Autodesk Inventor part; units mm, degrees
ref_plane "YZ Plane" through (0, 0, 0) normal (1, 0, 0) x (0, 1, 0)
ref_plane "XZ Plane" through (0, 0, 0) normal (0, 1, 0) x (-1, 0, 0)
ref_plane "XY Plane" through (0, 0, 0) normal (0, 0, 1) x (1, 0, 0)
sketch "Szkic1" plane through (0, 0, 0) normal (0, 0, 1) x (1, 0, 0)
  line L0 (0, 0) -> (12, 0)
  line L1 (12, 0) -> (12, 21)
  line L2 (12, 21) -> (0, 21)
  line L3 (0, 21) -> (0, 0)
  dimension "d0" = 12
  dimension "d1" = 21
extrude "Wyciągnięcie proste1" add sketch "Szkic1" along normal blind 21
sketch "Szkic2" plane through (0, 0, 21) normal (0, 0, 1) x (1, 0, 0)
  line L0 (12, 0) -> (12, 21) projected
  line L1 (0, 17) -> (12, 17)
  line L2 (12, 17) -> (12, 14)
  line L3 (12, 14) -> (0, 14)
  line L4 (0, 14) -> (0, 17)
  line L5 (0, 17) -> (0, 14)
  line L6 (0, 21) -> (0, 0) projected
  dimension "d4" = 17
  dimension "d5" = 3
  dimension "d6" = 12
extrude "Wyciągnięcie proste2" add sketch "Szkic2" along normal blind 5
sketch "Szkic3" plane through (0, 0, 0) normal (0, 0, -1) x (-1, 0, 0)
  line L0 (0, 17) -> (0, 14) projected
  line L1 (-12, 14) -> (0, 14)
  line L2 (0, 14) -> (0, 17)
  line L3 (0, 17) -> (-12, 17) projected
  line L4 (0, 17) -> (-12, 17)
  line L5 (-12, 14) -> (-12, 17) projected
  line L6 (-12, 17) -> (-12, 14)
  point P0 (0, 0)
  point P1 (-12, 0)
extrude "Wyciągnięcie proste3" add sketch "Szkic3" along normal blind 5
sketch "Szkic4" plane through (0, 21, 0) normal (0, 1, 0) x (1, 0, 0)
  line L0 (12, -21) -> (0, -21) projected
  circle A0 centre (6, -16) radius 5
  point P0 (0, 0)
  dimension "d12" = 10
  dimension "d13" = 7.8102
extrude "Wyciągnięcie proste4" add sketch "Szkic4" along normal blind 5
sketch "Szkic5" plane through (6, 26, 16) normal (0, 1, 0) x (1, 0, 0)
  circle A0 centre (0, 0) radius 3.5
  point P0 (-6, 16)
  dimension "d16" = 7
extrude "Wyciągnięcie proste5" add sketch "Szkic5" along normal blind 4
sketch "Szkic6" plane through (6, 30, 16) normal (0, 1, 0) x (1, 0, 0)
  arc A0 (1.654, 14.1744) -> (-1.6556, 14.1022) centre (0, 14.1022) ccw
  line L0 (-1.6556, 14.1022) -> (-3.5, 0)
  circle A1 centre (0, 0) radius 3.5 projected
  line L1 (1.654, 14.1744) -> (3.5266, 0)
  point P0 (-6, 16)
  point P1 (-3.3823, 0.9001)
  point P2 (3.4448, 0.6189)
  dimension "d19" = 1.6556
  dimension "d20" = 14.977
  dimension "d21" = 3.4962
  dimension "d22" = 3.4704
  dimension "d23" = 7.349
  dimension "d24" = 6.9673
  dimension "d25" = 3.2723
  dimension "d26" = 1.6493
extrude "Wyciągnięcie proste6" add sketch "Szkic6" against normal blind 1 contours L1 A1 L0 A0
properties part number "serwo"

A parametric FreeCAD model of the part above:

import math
import FreeCAD as App
import Part
import Sketcher

doc = App.newDocument("Part")
body = doc.addObject("PartDesign::Body", "Body")

# Sketch on XY plane
sketch1 = body.newObject("Sketcher::SketchObject", "Sketch")
sketch1.AttachmentSupport = (doc.getObject("XY_Plane"), [""])
sketch1.MapMode = "FlatFace"
sketch1.addGeometry([
    Part.LineSegment(App.Vector(0, 21, 0), App.Vector(0, 0, 0)),
    Part.LineSegment(App.Vector(0, 0, 0), App.Vector(12, 0, 0)),
    Part.LineSegment(App.Vector(12, 0, 0), App.Vector(12, 21, 0)),
    Part.LineSegment(App.Vector(12, 21, 0), App.Vector(0, 21, 0)),
], False)
sketch1.addConstraint([
    Sketcher.Constraint("Coincident", 0, 2, 1, 1),
    Sketcher.Constraint("Coincident", 1, 2, 2, 1),
    Sketcher.Constraint("Coincident", 2, 2, 3, 1),
    Sketcher.Constraint("Coincident", 3, 2, 0, 1),
    Sketcher.Constraint("Vertical", 0),
    Sketcher.Constraint("Horizontal", 1),
    Sketcher.Constraint("Vertical", 2),
    Sketcher.Constraint("Horizontal", 3),
    Sketcher.Constraint("Coincident", 0, 2, -1, 1),
    Sketcher.Constraint("DistanceX", 1, 1, 1, 2, 12.0),
    Sketcher.Constraint("DistanceY", 0, 2, 0, 1, 21.0),
])
pad1 = body.newObject("PartDesign::Pad", "Pad")
pad1.Profile = sketch1
pad1.Length = 21

# Sketch on XY plane
sketch2 = body.newObject("Sketcher::SketchObject", "Sketch001")
sketch2.AttachmentSupport = (doc.getObject("XY_Plane"), [""])
sketch2.MapMode = "FlatFace"
sketch2.AttachmentOffset = App.Placement(App.Vector(0, 0, 21), App.Rotation())
sketch2.addGeometry([
    Part.LineSegment(App.Vector(0, 14, 0), App.Vector(12, 14, 0)),
    Part.LineSegment(App.Vector(12, 14, 0), App.Vector(12, 17, 0)),
    Part.LineSegment(App.Vector(12, 17, 0), App.Vector(0, 17, 0)),
    Part.LineSegment(App.Vector(0, 17, 0), App.Vector(0, 14, 0)),
], False)
sketch2.addConstraint([
    Sketcher.Constraint("Coincident", 0, 2, 1, 1),
    Sketcher.Constraint("Coincident", 1, 2, 2, 1),
    Sketcher.Constraint("Coincident", 2, 2, 3, 1),
    Sketcher.Constraint("Coincident", 3, 2, 0, 1),
    Sketcher.Constraint("Horizontal", 0),
    Sketcher.Constraint("Vertical", 1),
    Sketcher.Constraint("Horizontal", 2),
    Sketcher.Constraint("Vertical", 3),
    Sketcher.Constraint("PointOnObject", 2, 2, -2),
    Sketcher.Constraint("DistanceX", 0, 1, 0, 2, 12.0),
    Sketcher.Constraint("DistanceY", 1, 1, 1, 2, 3.0),
    Sketcher.Constraint("DistanceY", -1, 1, 1, 2, 17.0),
])
pad2 = body.newObject("PartDesign::Pad", "Pad001")
pad2.Profile = sketch2
pad2.Length = 5

# Sketch on XY plane
sketch3 = body.newObject("Sketcher::SketchObject", "Sketch002")
sketch3.AttachmentSupport = (doc.getObject("XY_Plane"), [""])
sketch3.MapMode = "FlatFace"
sketch3.addGeometry([
    Part.LineSegment(App.Vector(0, 14, 0), App.Vector(0, 17, 0)),
    Part.LineSegment(App.Vector(0, 17, 0), App.Vector(12, 17, 0)),
    Part.LineSegment(App.Vector(12, 17, 0), App.Vector(12, 14, 0)),
    Part.LineSegment(App.Vector(12, 14, 0), App.Vector(0, 14, 0)),
], False)
sketch3.addConstraint([
    Sketcher.Constraint("Coincident", 0, 2, 1, 1),
    Sketcher.Constraint("Coincident", 1, 2, 2, 1),
    Sketcher.Constraint("Coincident", 2, 2, 3, 1),
    Sketcher.Constraint("Coincident", 3, 2, 0, 1),
    Sketcher.Constraint("Vertical", 0),
    Sketcher.Constraint("Horizontal", 1),
    Sketcher.Constraint("Vertical", 2),
    Sketcher.Constraint("Horizontal", 3),
    Sketcher.Constraint("PointOnObject", 0, 2, -2),
    Sketcher.Constraint("DistanceX", 1, 1, 1, 2, 12.0),
    Sketcher.Constraint("DistanceY", 0, 1, 0, 2, 3.0),
    Sketcher.Constraint("DistanceY", -1, 1, 0, 2, 17.0),
])
pad3 = body.newObject("PartDesign::Pad", "Pad002")
pad3.Profile = sketch3
pad3.Length = 5
pad3.Reversed = True

# Sketch on XZ plane
sketch4 = body.newObject("Sketcher::SketchObject", "Sketch003")
sketch4.AttachmentSupport = (doc.getObject("XZ_Plane"), [""])
sketch4.MapMode = "FlatFace"
sketch4.AttachmentOffset = App.Placement(App.Vector(0, 0, -21), App.Rotation())
sketch4.addGeometry(Part.Circle(App.Vector(6, 16, 0), App.Vector(0, 0, 1), 5), False)
sketch4.addConstraint([
    Sketcher.Constraint("Diameter", 0, 10.0),
    Sketcher.Constraint("DistanceX", -1, 1, 0, 3, 6.0),
    Sketcher.Constraint("DistanceY", -1, 1, 0, 3, 16.0),
])
pad4 = body.newObject("PartDesign::Pad", "Pad003")
pad4.Profile = sketch4
pad4.Length = 5
pad4.Reversed = True

# Sketch on XZ plane
sketch5 = body.newObject("Sketcher::SketchObject", "Sketch004")
sketch5.AttachmentSupport = (doc.getObject("XZ_Plane"), [""])
sketch5.MapMode = "FlatFace"
sketch5.AttachmentOffset = App.Placement(App.Vector(0, 0, -26), App.Rotation())
sketch5.addGeometry(Part.Circle(App.Vector(6, 16, 0), App.Vector(0, 0, 1), 3.5), False)
sketch5.addConstraint([
    Sketcher.Constraint("Diameter", 0, 7.0),
    Sketcher.Constraint("DistanceX", -1, 1, 0, 3, 6.0),
    Sketcher.Constraint("DistanceY", -1, 1, 0, 3, 16.0),
])
pad5 = body.newObject("PartDesign::Pad", "Pad004")
pad5.Profile = sketch5
pad5.Length = 4
pad5.Reversed = True

# Sketch on XZ plane
sketch6 = body.newObject("Sketcher::SketchObject", "Sketch005")
sketch6.AttachmentSupport = (doc.getObject("XZ_Plane"), [""])
sketch6.MapMode = "FlatFace"
sketch6.AttachmentOffset = App.Placement(App.Vector(0, 0, -30), App.Rotation())
sketch6.addGeometry([
    Part.LineSegment(App.Vector(9.4, 15.4, 0), App.Vector(7.7, 1.8, 0)),
    Part.ArcOfCircle(Part.Circle(App.Vector(6, 1.9, 0), App.Vector(0, 0, 1), 1.7), math.radians(180), math.radians(358)),
    Part.LineSegment(App.Vector(4.3, 1.9, 0), App.Vector(2.6, 15.1, 0)),
    Part.ArcOfCircle(Part.Circle(App.Vector(6, 16, 0), App.Vector(0, 0, 1), 3.5), math.radians(-165), math.radians(-10)),
], False)
sketch6.addConstraint([
    Sketcher.Constraint("Coincident", 0, 2, 1, 2),
    Sketcher.Constraint("Coincident", 1, 1, 2, 1),
    Sketcher.Constraint("Coincident", 2, 2, 3, 1),
    Sketcher.Constraint("Coincident", 3, 2, 0, 1),
    Sketcher.Constraint("Vertical", 1, 3, 3, 3),
    Sketcher.Constraint("Radius", 1, 1.6556),
    Sketcher.Constraint("Radius", 3, 3.5),
    Sketcher.Constraint("DistanceX", -1, 1, 1, 3, 6.0),
    Sketcher.Constraint("DistanceY", -1, 1, 3, 3, 16.0),
    Sketcher.Constraint("DistanceY", -1, 1, 2, 2, 15.1),
    Sketcher.Constraint("Distance", 0, 13.673),
    Sketcher.Constraint("DistanceX", -1, 1, 0, 2, 7.654),
    Sketcher.Constraint("DistanceY", -1, 1, 3, 2, 15.381),
    Sketcher.Constraint("DistanceY", 1, 1, 2, 2, 13.202),
])
pad6 = body.newObject("PartDesign::Pad", "Pad005")
pad6.Profile = sketch6
pad6.Length = 1

doc.recompute()
